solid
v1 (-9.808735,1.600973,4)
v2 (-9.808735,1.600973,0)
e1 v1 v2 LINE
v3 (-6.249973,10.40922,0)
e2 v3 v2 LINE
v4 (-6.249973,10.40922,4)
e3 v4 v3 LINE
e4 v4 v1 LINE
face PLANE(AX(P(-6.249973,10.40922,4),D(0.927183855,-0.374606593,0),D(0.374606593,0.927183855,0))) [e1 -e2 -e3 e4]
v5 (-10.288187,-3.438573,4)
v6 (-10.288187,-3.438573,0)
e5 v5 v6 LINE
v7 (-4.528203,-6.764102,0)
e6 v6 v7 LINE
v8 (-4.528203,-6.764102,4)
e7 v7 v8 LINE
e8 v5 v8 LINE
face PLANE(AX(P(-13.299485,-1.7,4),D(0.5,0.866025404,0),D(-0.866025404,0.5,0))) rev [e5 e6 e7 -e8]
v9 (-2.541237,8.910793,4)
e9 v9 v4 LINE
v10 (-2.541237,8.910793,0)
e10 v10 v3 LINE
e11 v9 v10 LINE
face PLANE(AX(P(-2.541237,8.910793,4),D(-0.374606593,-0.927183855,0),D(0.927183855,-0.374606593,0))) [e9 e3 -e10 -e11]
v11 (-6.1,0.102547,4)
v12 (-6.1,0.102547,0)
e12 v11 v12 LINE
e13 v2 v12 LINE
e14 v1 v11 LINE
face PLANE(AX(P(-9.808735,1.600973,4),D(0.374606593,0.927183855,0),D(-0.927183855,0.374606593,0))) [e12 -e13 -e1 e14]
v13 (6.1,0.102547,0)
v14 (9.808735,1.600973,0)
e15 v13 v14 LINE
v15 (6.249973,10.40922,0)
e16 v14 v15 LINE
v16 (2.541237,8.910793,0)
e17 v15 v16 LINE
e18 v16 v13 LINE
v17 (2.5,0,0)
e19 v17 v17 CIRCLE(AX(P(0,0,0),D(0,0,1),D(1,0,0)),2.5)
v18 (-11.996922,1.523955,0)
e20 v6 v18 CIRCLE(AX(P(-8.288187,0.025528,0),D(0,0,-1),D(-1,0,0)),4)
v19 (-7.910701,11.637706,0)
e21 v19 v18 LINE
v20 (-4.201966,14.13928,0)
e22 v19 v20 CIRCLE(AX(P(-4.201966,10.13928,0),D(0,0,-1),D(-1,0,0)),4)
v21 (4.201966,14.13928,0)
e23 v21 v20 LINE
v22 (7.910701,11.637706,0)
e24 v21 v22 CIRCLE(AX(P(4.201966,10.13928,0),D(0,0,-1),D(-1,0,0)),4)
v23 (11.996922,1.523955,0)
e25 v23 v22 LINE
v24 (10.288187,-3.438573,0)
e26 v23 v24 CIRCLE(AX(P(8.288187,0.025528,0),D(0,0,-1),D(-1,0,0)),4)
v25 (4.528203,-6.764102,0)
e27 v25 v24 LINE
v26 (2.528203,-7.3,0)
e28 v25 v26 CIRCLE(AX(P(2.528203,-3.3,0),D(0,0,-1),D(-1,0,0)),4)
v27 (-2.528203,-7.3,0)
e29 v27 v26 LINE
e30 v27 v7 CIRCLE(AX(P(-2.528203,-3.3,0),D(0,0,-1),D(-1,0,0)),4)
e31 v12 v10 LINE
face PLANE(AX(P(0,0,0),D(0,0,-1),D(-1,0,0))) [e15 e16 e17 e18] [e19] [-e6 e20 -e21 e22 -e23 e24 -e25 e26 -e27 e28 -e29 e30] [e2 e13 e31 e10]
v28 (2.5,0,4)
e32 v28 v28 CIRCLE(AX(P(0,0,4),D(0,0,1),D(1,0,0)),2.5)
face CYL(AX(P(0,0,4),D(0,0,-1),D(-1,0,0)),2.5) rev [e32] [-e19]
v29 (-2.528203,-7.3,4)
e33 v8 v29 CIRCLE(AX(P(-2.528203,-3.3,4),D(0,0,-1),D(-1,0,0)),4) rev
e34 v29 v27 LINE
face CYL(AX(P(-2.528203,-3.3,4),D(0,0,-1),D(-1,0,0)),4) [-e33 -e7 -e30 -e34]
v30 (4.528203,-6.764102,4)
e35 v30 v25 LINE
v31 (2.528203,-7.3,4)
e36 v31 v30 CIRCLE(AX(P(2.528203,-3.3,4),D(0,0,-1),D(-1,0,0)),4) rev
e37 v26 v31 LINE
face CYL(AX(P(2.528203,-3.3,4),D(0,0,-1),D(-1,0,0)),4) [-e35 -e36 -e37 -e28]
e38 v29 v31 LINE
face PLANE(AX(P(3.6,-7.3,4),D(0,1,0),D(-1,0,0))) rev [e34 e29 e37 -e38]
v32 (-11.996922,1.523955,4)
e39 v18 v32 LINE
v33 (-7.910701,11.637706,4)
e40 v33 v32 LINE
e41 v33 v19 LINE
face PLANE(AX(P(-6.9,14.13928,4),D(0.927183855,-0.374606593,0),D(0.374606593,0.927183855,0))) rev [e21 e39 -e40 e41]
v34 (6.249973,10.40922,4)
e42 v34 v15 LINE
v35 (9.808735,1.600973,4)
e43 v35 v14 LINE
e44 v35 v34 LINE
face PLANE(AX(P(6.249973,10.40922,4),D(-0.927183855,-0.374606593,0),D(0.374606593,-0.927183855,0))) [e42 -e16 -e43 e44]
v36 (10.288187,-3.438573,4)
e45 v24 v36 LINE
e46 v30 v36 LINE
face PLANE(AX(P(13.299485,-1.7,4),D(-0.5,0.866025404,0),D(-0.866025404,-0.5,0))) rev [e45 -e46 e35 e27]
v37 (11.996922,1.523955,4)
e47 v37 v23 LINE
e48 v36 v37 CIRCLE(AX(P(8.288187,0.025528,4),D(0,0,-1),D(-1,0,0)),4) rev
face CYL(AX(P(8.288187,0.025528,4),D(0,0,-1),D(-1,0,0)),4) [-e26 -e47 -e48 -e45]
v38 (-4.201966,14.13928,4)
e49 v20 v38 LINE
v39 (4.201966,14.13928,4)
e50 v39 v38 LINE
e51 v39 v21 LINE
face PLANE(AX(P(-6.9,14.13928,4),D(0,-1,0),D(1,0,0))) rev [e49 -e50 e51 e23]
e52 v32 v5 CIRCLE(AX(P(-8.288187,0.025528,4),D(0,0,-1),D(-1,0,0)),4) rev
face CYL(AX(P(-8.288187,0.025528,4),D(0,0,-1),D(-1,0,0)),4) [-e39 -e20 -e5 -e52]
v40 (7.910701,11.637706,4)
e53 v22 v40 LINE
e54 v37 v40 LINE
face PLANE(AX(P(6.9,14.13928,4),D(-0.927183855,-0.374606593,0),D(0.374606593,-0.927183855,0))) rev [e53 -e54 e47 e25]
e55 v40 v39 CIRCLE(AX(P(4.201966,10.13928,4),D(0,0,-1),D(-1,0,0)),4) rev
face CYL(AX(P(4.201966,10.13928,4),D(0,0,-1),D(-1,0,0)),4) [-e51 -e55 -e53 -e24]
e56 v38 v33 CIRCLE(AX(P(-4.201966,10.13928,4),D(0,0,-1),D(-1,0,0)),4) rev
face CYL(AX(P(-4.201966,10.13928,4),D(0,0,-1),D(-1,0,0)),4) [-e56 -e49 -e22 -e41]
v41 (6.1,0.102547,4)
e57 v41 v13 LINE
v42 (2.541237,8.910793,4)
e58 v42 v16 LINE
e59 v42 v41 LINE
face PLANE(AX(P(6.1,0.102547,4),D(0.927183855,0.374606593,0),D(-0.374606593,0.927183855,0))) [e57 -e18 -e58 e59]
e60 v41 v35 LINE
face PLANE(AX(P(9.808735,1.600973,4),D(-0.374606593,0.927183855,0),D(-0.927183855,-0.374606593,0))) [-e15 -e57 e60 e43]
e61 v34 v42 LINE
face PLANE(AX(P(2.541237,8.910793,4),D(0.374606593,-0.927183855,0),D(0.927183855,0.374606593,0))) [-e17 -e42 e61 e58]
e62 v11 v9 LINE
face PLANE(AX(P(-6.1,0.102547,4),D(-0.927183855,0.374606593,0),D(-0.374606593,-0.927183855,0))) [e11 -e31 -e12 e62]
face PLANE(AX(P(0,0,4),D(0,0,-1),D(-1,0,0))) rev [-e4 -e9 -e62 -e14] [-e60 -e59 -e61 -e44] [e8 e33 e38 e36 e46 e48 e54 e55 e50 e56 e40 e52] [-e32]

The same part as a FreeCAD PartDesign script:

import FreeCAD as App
import Part
import Sketcher
Q = App.Units.Quantity


def edges_at(feature, points):
    """Names of the edges that pass closest to the given points."""
    edges = feature.Shape.Edges
    near = lambda p: min(range(len(edges)), key=lambda i: edges[i].distToShape(Part.Vertex(*p))[0])
    return sorted({f"Edge{near(p) + 1}" for p in points})

doc = App.newDocument("Part")
body = doc.addObject("PartDesign::Body", "Body")

sketch1 = doc.addObject("Sketcher::SketchObject", "Sketch")
body.addObject(sketch1)
sketch1.AttachmentSupport = (doc.XY_Plane, [""])
sketch1.MapMode = "FlatFace"
sketch1.addGeometry([
    Part.LineSegment(App.Vector(6.9, 14.1, 0), App.Vector(-6.9, 14.1, 0)),
    Part.LineSegment(App.Vector(-6.9, 14.1, 0), App.Vector(-13.3, -1.7, 0)),
    Part.LineSegment(App.Vector(-13.3, -1.7, 0), App.Vector(-3.6, -7.3, 0)),
    Part.LineSegment(App.Vector(-3.6, -7.3, 0), App.Vector(3.6, -7.3, 0)),
    Part.LineSegment(App.Vector(3.6, -7.3, 0), App.Vector(13.3, -1.7, 0)),
    Part.LineSegment(App.Vector(13.3, -1.7, 0), App.Vector(6.9, 14.1, 0)),
    Part.Circle(App.Vector(0, 0, 0), App.Vector(0, 0, 1), 2.5),
    Part.LineSegment(App.Vector(2.5, 8.9, 0), App.Vector(6.2, 10.4, 0)),
    Part.LineSegment(App.Vector(6.2, 10.4, 0), App.Vector(9.8, 1.6, 0)),
    Part.LineSegment(App.Vector(9.8, 1.6, 0), App.Vector(6.1, 0.1, 0)),
    Part.LineSegment(App.Vector(6.1, 0.1, 0), App.Vector(2.5, 8.9, 0)),
    Part.LineSegment(App.Vector(-6.1, 0.1, 0), App.Vector(-9.8, 1.6, 0)),
    Part.LineSegment(App.Vector(-9.8, 1.6, 0), App.Vector(-6.2, 10.4, 0)),
    Part.LineSegment(App.Vector(-6.2, 10.4, 0), App.Vector(-2.5, 8.9, 0)),
    Part.LineSegment(App.Vector(-2.5, 8.9, 0), App.Vector(-6.1, 0.1, 0)),
], False)
sketch1.addConstraint([
    Sketcher.Constraint("Coincident", 0, 2, 1, 1),
    Sketcher.Constraint("Coincident", 1, 2, 2, 1),
    Sketcher.Constraint("Coincident", 2, 2, 3, 1),
    Sketcher.Constraint("Coincident", 3, 2, 4, 1),
    Sketcher.Constraint("Coincident", 4, 2, 5, 1),
    Sketcher.Constraint("Coincident", 5, 2, 0, 1),
    Sketcher.Constraint("Coincident", 7, 2, 8, 1),
    Sketcher.Constraint("Coincident", 8, 2, 9, 1),
    Sketcher.Constraint("Coincident", 9, 2, 10, 1),
    Sketcher.Constraint("Coincident", 10, 2, 7, 1),
    Sketcher.Constraint("Coincident", 11, 2, 12, 1),
    Sketcher.Constraint("Coincident", 12, 2, 13, 1),
    Sketcher.Constraint("Coincident", 13, 2, 14, 1),
    Sketcher.Constraint("Coincident", 14, 2, 11, 1),
    Sketcher.Constraint("Horizontal", 0),
    Sketcher.Constraint("Horizontal", 3),
    Sketcher.Constraint("Coincident", 6, 3, -1, 1),
    Sketcher.Constraint("Symmetric", 1, 2, 4, 2, -2),
    Sketcher.Constraint("Symmetric", 8, 2, 11, 2, -2),
    Sketcher.Constraint("Symmetric", 7, 2, 12, 2, -2),
    Sketcher.Constraint("Symmetric", 10, 2, 13, 2, -2),
    Sketcher.Constraint("Symmetric", 9, 2, 14, 2, -2),
    Sketcher.Constraint("Perpendicular", 5, 7),
    Sketcher.Constraint("Perpendicular", 7, 8),
    Sketcher.Constraint("Perpendicular", 8, 9),
    Sketcher.Constraint("Perpendicular", 9, 10),
    Sketcher.Constraint("Perpendicular", 1, 11),
    Sketcher.Constraint("Equal", 2, 4),
    Sketcher.Constraint("Diameter", 6, Q("5 mm")),
    Sketcher.Constraint("Angle", 1, Q("-112 deg")),
    Sketcher.Constraint("Angle", 2, Q("-30 deg")),
    Sketcher.Constraint("Distance", 7, Q("4 mm")),
    Sketcher.Constraint("DistanceX", 0, 2, 0, 1, Q("13.8 mm")),
    Sketcher.Constraint("DistanceX", 3, 1, 3, 2, Q("7.2 mm")),
    Sketcher.Constraint("Distance", 2, Q("11.2 mm")),
    Sketcher.Constraint("Distance", 8, Q("9.5 mm")),
    Sketcher.Constraint("DistanceY", 1, 2, -1, 1, Q("1.7 mm")),
    Sketcher.Constraint("DistanceX", -1, 1, 9, 2, Q("6.1 mm")),
    Sketcher.Constraint("DistanceY", -1, 1, 7, 2, Q("10.40922 mm")),
])
pad1 = doc.addObject("PartDesign::Pad", "Pad")
body.addObject(pad1)
pad1.Profile = sketch1
pad1.Length = 4
doc.recompute()

fillet = doc.addObject("PartDesign::Fillet", "Fillet")
body.addObject(fillet)
fillet.Base = (pad1, edges_at(pad1, [
    (13.299, -1.7, 2),
    (3.6, -7.3, 2),
    (-3.6, -7.3, 2),
    (-13.299, -1.7, 2),
    (-6.9, 14.139, 2),
    (6.9, 14.139, 2),
]))
fillet.Radius = 4

doc.recompute()
